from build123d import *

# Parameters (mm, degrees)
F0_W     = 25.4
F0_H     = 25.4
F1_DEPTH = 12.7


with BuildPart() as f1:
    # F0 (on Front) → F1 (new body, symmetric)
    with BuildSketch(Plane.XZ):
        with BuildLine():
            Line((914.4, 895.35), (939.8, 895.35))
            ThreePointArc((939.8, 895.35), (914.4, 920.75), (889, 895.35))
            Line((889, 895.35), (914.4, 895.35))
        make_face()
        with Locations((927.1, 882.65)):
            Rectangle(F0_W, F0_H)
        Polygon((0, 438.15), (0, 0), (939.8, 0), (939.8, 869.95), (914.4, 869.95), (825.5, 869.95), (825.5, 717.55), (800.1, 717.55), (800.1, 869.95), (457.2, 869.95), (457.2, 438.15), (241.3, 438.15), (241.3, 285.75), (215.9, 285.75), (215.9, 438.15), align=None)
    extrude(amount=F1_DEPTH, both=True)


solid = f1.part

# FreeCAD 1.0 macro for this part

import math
import FreeCAD as App
import Part
import Sketcher
from FreeCAD import Vector
Q = App.Units.Quantity

doc = App.newDocument("Part")
body = doc.addObject("PartDesign::Body", "Body")

sketch1 = body.newObject("Sketcher::SketchObject", "Sketch")
sketch1.AttachmentSupport = (doc.getObject("XZ_Plane"), [""])
sketch1.MapMode = "FlatFace"
sketch1.addGeometry([
    Part.ArcOfCircle(Part.Circle(Vector(914, 895, 0), Vector(0, 0, 1), 25), math.radians(0), math.radians(180)),
    Part.LineSegment(Vector(889, 895, 0), Vector(914, 895, 0)),
    Part.LineSegment(Vector(914, 895, 0), Vector(914, 870, 0)),
    Part.LineSegment(Vector(914, 870, 0), Vector(826, 870, 0)),
    Part.LineSegment(Vector(826, 870, 0), Vector(826, 718, 0)),
    Part.LineSegment(Vector(826, 718, 0), Vector(800, 718, 0)),
    Part.LineSegment(Vector(800, 718, 0), Vector(800, 870, 0)),
    Part.LineSegment(Vector(800, 870, 0), Vector(457, 870, 0)),
    Part.LineSegment(Vector(457, 870, 0), Vector(457, 438, 0)),
    Part.LineSegment(Vector(457, 438, 0), Vector(241, 438, 0)),
    Part.LineSegment(Vector(241, 438, 0), Vector(241, 286, 0)),
    Part.LineSegment(Vector(241, 286, 0), Vector(216, 286, 0)),
    Part.LineSegment(Vector(216, 286, 0), Vector(216, 438, 0)),
    Part.LineSegment(Vector(216, 438, 0), Vector(0, 438, 0)),
    Part.LineSegment(Vector(0, 438, 0), Vector(0, 0, 0)),
    Part.LineSegment(Vector(0, 0, 0), Vector(940, 0, 0)),
    Part.LineSegment(Vector(940, 0, 0), Vector(940, 895, 0)),
], False)
sketch1.addConstraint([
    Sketcher.Constraint("Coincident", 0, 2, 1, 1),
    Sketcher.Constraint("Coincident", 1, 2, 2, 1),
    Sketcher.Constraint("Coincident", 2, 2, 3, 1),
    Sketcher.Constraint("Coincident", 3, 2, 4, 1),
    Sketcher.Constraint("Coincident", 4, 2, 5, 1),
    Sketcher.Constraint("Coincident", 5, 2, 6, 1),
    Sketcher.Constraint("Coincident", 6, 2, 7, 1),
    Sketcher.Constraint("Coincident", 7, 2, 8, 1),
    Sketcher.Constraint("Coincident", 8, 2, 9, 1),
    Sketcher.Constraint("Coincident", 9, 2, 10, 1),
    Sketcher.Constraint("Coincident", 10, 2, 11, 1),
    Sketcher.Constraint("Coincident", 11, 2, 12, 1),
    Sketcher.Constraint("Coincident", 12, 2, 13, 1),
    Sketcher.Constraint("Coincident", 13, 2, 14, 1),
    Sketcher.Constraint("Coincident", 14, 2, 15, 1),
    Sketcher.Constraint("Coincident", 15, 2, 16, 1),
    Sketcher.Constraint("Tangent", 16, 2, 0, 1),
    Sketcher.Constraint("Horizontal", 1),
    Sketcher.Constraint("Vertical", 2),
    Sketcher.Constraint("Horizontal", 3),
    Sketcher.Constraint("Vertical", 4),
    Sketcher.Constraint("Horizontal", 5),
    Sketcher.Constraint("Vertical", 6),
    Sketcher.Constraint("Horizontal", 7),
    Sketcher.Constraint("Vertical", 8),
    Sketcher.Constraint("Horizontal", 9),
    Sketcher.Constraint("Vertical", 10),
    Sketcher.Constraint("Horizontal", 11),
    Sketcher.Constraint("Vertical", 12),
    Sketcher.Constraint("Horizontal", 13),
    Sketcher.Constraint("Vertical", 14),
    Sketcher.Constraint("Horizontal", 15),
    Sketcher.Constraint("Vertical", 16),
    Sketcher.Constraint("Coincident", 14, 2, -1, 1),
    Sketcher.Constraint("Coincident", 1, 2, 0, 3),
    Sketcher.Constraint("Horizontal", 3, 2, 6, 2),
    Sketcher.Constraint("Horizontal", 9, 2, 12, 2),
    Sketcher.Constraint("Equal", 1, 5),
    Sketcher.Constraint("Equal", 5, 11),
    Sketcher.Constraint("Equal", 9, 13),
    Sketcher.Constraint("Equal", 11, 2),
    Sketcher.Constraint("Equal", 6, 10),
    Sketcher.Constraint("Radius", 0, Q("1 in")),
    Sketcher.Constraint("DistanceX", 15, 1, 15, 2, Q("37 in")),
    Sketcher.Constraint("DistanceY", 4, 2, 4, 1, Q("6 in")),
    Sketcher.Constraint("DistanceY", 8, 2, 8, 1, Q("17 in")),
    Sketcher.Constraint("DistanceX", 3, 2, 3, 1, Q("3.5 in")),
    Sketcher.Constraint("DistanceX", 7, 2, 7, 1, Q("13.5 in")),
    Sketcher.Constraint("DistanceY", 14, 2, 14, 1, Q("17.25 in")),
])
pad1 = body.newObject("PartDesign::Pad", "Pad")
pad1.Profile = sketch1
pad1.Length = Q("1 in")
pad1.Midplane = True

doc.recompute()
